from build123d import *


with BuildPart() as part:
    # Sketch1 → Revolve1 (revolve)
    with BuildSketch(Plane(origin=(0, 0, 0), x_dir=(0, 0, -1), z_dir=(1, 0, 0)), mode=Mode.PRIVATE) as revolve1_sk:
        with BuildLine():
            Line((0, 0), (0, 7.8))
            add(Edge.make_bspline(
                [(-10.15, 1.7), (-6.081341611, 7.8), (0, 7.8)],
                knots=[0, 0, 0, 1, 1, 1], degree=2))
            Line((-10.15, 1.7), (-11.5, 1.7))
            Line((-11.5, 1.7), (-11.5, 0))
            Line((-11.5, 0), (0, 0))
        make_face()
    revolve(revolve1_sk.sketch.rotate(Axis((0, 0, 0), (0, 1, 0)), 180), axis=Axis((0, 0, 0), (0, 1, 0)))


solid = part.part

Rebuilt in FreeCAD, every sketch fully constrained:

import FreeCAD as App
import Part
import Sketcher
from FreeCAD import Vector
Q = App.Units.Quantity

doc = App.newDocument("Part")
body = doc.addObject("PartDesign::Body", "Body")

# Sketch on YZ plane
sketch1 = body.newObject("Sketcher::SketchObject", "Sketch")
sketch1.AttachmentSupport = (doc.getObject("YZ_Plane"), [""])
sketch1.MapMode = "FlatFace"
sketch1.addGeometry([
    Part.LineSegment(Vector(0, 0, 0), Vector(7.8, 0, 0)),  # 0
    Part.BSplineCurve([Vector(1.7, 10.15, 0), Vector(7.8, 6.081342, 0), Vector(7.8, 0, 0)], [3, 3], [0, 1], False, 2, [1, 1, 1], False),  # 1
    Part.LineSegment(Vector(1.7, 10.15, 0), Vector(1.7, 11.5, 0)),  # 2
    Part.LineSegment(Vector(1.7, 11.5, 0), Vector(0, 11.5, 0)),  # 3
    Part.LineSegment(Vector(0, 11.5, 0), Vector(0, 0, 0)),  # 4
], False)
sketch1.addConstraint([
    Sketcher.Constraint("Block", 1),
    Sketcher.Constraint("Coincident", 0, 2, 1, 2),
    Sketcher.Constraint("Coincident", 1, 1, 2, 1),
    Sketcher.Constraint("Coincident", 2, 2, 3, 1),
    Sketcher.Constraint("Coincident", 3, 2, 4, 1),
    Sketcher.Constraint("Coincident", 4, 2, 0, 1),
    Sketcher.Constraint("Horizontal", 0),
    Sketcher.Constraint("Vertical", 2),
    Sketcher.Constraint("Horizontal", 3),
    Sketcher.Constraint("Vertical", 4),
    Sketcher.Constraint("PointOnObject", 3, 2, -2),
    Sketcher.Constraint("DistanceY", 4, 2, 4, 1, Q("11.5 mm")),
])
revolution = body.newObject("PartDesign::Revolution", "Revolution")
revolution.Profile = sketch1
revolution.ReferenceAxis = (sketch1, ["H_Axis"])
revolution.Angle = 360

doc.recompute()
